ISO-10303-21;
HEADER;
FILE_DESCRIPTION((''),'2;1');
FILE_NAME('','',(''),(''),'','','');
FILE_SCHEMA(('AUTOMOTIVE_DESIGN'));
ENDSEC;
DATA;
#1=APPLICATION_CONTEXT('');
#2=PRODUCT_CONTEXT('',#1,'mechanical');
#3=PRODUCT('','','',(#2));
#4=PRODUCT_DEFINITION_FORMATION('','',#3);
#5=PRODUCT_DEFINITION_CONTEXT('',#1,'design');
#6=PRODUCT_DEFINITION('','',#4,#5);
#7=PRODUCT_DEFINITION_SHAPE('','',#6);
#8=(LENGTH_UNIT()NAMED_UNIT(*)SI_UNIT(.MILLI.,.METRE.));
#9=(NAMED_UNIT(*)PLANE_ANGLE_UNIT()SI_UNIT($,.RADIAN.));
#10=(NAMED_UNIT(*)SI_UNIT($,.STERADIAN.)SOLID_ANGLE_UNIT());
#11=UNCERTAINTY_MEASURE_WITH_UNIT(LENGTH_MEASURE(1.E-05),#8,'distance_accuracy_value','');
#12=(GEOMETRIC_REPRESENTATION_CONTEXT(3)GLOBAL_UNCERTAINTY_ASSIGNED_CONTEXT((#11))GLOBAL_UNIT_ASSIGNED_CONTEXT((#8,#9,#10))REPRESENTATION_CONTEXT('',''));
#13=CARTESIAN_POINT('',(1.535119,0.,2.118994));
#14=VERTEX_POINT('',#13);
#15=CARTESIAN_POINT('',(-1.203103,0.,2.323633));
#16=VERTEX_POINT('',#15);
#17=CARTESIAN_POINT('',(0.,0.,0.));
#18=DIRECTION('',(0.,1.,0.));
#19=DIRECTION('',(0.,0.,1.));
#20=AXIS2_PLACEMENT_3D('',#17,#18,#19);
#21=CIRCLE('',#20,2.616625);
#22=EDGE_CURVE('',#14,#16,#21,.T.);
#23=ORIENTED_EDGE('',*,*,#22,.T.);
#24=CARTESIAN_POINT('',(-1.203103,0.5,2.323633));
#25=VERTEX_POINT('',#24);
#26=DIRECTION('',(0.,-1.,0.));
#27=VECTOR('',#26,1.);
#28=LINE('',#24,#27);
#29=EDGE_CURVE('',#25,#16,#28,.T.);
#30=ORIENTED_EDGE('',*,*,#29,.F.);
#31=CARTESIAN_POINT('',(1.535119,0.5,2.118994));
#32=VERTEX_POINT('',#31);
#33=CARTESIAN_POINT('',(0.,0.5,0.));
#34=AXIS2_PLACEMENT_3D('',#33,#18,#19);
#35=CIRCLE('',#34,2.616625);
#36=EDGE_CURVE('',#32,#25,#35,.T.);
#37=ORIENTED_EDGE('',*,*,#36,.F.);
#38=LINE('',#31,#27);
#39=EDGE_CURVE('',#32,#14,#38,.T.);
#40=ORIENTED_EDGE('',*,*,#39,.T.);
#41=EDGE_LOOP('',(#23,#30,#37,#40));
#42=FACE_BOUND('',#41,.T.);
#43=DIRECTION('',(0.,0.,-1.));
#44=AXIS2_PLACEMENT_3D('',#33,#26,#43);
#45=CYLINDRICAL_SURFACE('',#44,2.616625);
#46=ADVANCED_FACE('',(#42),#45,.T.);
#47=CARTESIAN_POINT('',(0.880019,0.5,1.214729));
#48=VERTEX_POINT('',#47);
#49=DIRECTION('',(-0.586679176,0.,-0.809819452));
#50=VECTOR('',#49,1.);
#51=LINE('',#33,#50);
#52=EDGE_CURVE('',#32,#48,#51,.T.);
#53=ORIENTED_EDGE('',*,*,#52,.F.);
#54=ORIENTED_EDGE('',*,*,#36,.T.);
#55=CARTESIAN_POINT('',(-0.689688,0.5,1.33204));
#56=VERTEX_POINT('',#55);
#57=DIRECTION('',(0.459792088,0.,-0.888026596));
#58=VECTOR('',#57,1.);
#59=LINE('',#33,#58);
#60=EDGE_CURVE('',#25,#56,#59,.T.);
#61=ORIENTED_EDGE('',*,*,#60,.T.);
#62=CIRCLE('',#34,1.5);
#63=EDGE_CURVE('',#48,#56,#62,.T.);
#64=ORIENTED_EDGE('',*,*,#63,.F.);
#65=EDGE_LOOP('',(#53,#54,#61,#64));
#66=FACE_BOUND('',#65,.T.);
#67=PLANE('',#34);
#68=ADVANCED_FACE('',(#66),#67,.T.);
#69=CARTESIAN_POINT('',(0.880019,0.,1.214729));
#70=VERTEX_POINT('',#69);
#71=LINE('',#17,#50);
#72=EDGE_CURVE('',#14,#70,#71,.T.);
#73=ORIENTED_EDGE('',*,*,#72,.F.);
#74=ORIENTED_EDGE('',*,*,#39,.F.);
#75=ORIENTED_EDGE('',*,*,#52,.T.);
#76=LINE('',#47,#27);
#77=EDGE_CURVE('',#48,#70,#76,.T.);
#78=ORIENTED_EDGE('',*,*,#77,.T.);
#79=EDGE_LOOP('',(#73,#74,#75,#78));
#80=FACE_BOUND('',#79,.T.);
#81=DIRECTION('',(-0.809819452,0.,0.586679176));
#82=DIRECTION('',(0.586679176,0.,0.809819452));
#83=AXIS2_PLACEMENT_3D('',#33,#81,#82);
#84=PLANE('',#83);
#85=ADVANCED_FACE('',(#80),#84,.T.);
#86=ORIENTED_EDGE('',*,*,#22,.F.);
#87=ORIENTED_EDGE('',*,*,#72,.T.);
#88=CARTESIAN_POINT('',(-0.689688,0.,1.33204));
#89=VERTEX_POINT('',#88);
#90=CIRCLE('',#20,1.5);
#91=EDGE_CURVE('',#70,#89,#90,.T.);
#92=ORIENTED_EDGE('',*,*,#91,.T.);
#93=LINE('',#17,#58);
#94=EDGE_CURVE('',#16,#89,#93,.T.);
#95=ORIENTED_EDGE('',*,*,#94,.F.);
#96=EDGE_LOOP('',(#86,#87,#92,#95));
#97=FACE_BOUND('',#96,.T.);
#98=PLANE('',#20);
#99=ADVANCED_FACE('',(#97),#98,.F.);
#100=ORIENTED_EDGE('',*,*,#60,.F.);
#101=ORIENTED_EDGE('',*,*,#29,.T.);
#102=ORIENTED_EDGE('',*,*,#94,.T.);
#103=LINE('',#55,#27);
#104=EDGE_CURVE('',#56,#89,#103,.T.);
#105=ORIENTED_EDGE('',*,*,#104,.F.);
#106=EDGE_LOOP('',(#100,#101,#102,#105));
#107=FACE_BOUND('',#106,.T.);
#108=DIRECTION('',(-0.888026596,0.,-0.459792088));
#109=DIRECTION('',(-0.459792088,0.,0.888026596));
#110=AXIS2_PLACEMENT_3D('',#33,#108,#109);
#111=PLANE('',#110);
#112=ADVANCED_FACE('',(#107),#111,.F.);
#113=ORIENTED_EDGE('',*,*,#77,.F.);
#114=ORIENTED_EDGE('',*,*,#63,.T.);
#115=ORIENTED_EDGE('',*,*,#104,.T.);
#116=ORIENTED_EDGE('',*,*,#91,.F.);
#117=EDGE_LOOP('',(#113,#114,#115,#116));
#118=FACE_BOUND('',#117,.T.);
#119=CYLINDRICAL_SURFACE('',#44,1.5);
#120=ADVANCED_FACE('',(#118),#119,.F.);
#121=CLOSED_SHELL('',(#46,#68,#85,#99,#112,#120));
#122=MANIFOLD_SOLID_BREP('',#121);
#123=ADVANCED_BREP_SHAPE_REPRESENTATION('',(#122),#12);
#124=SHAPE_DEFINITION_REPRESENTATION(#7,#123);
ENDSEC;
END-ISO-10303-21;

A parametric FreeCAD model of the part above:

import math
import FreeCAD as App
import Part
import Sketcher
Q = App.Units.Quantity

doc = App.newDocument("Part")
body = doc.addObject("PartDesign::Body", "Body")

sketch1 = doc.addObject("Sketcher::SketchObject", "Sketch")
body.addObject(sketch1)
sketch1.AttachmentSupport = (doc.XZ_Plane, [""])
sketch1.MapMode = "FlatFace"
sketch1.addGeometry([
    Part.ArcOfCircle(Part.Circle(App.Vector(0, 0, 0), App.Vector(0, 0, 1), 2.6), math.radians(-132), math.radians(-48)),
    Part.ArcOfCircle(Part.Circle(App.Vector(0, 0, 0), App.Vector(0, 0, 1), 2.6), math.radians(117), math.radians(228)),
    Part.LineSegment(App.Vector(-1.2, 2.3, 0), App.Vector(-0.7, 1.3, 0)),
    Part.ArcOfCircle(Part.Circle(App.Vector(0, 0, 0), App.Vector(0, 0, 1), 1.5), math.radians(117), math.radians(228)),
    Part.ArcOfCircle(Part.Circle(App.Vector(0, 0, 0), App.Vector(0, 0, 1), 1.5), math.radians(-132), math.radians(-51)),
    Part.ArcOfCircle(Part.Circle(App.Vector(0, 0, 0), App.Vector(0, 0, 1), 1.5), math.radians(-51), math.radians(0)),
    Part.ArcOfCircle(Part.Circle(App.Vector(0, 0, 0), App.Vector(0, 0, 1), 1.5), math.radians(0), math.radians(54)),
    Part.LineSegment(App.Vector(0.9, 1.2, 0), App.Vector(1.5, 2.1, 0)),
    Part.ArcOfCircle(Part.Circle(App.Vector(0, 0, 0), App.Vector(0, 0, 1), 2.6), math.radians(0), math.radians(54)),
    Part.ArcOfCircle(Part.Circle(App.Vector(0, 0, 0), App.Vector(0, 0, 1), 2.6), math.radians(-48), math.radians(0)),
], False)
sketch1.addConstraint([
    Sketcher.Constraint("Tangent", 0, 1, 1, 2),
    Sketcher.Constraint("Coincident", 1, 1, 2, 1),
    Sketcher.Constraint("Coincident", 2, 2, 3, 1),
    Sketcher.Constraint("Tangent", 3, 2, 4, 1),
    Sketcher.Constraint("Tangent", 4, 2, 5, 1),
    Sketcher.Constraint("Tangent", 5, 2, 6, 1),
    Sketcher.Constraint("Coincident", 6, 2, 7, 1),
    Sketcher.Constraint("Coincident", 7, 2, 8, 2),
    Sketcher.Constraint("Tangent", 8, 1, 9, 2),
    Sketcher.Constraint("Tangent", 9, 1, 0, 2),
    Sketcher.Constraint("Coincident", 0, 3, -1, 1),
    Sketcher.Constraint("Coincident", 3, 3, -1, 1),
    Sketcher.Constraint("Coincident", 5, 3, -1, 1),
    Sketcher.Constraint("Coincident", 8, 3, -1, 1),
    Sketcher.Constraint("Equal", 0, 1),
    Sketcher.Constraint("Equal", 5, 6),
    Sketcher.Constraint("PointOnObject", 5, 2, -1),
    Sketcher.Constraint("PointOnObject", 8, 1, -1),
    Sketcher.Constraint("Horizontal", 0, 1, 9, 1),
    Sketcher.Constraint("Radius", 3, Q("1.5 mm")),
    Sketcher.Constraint("Radius", 0, Q("2.616625 mm")),
    Sketcher.Constraint("DistanceX", 6, 2, 7, 2, Q("0.655101 mm")),
    Sketcher.Constraint("DistanceX", 0, 1, -1, 1, Q("1.73456 mm")),
    Sketcher.Constraint("DistanceX", 2, 2, -1, 1, Q("0.689688 mm")),
    Sketcher.Constraint("DistanceX", 3, 2, -1, 1, Q("0.994349 mm")),
    Sketcher.Constraint("DistanceX", -1, 1, 6, 2, Q("0.880019 mm")),
    Sketcher.Constraint("DistanceX", 1, 1, -1, 1, Q("1.203103 mm")),
    Sketcher.Constraint("DistanceX", -1, 1, 4, 2, Q("0.942438 mm")),
])
pad1 = doc.addObject("PartDesign::Pad", "Pad")
body.addObject(pad1)
pad1.Profile = sketch1
pad1.Length = 0.5
pad1.Reversed = True

doc.recompute()
